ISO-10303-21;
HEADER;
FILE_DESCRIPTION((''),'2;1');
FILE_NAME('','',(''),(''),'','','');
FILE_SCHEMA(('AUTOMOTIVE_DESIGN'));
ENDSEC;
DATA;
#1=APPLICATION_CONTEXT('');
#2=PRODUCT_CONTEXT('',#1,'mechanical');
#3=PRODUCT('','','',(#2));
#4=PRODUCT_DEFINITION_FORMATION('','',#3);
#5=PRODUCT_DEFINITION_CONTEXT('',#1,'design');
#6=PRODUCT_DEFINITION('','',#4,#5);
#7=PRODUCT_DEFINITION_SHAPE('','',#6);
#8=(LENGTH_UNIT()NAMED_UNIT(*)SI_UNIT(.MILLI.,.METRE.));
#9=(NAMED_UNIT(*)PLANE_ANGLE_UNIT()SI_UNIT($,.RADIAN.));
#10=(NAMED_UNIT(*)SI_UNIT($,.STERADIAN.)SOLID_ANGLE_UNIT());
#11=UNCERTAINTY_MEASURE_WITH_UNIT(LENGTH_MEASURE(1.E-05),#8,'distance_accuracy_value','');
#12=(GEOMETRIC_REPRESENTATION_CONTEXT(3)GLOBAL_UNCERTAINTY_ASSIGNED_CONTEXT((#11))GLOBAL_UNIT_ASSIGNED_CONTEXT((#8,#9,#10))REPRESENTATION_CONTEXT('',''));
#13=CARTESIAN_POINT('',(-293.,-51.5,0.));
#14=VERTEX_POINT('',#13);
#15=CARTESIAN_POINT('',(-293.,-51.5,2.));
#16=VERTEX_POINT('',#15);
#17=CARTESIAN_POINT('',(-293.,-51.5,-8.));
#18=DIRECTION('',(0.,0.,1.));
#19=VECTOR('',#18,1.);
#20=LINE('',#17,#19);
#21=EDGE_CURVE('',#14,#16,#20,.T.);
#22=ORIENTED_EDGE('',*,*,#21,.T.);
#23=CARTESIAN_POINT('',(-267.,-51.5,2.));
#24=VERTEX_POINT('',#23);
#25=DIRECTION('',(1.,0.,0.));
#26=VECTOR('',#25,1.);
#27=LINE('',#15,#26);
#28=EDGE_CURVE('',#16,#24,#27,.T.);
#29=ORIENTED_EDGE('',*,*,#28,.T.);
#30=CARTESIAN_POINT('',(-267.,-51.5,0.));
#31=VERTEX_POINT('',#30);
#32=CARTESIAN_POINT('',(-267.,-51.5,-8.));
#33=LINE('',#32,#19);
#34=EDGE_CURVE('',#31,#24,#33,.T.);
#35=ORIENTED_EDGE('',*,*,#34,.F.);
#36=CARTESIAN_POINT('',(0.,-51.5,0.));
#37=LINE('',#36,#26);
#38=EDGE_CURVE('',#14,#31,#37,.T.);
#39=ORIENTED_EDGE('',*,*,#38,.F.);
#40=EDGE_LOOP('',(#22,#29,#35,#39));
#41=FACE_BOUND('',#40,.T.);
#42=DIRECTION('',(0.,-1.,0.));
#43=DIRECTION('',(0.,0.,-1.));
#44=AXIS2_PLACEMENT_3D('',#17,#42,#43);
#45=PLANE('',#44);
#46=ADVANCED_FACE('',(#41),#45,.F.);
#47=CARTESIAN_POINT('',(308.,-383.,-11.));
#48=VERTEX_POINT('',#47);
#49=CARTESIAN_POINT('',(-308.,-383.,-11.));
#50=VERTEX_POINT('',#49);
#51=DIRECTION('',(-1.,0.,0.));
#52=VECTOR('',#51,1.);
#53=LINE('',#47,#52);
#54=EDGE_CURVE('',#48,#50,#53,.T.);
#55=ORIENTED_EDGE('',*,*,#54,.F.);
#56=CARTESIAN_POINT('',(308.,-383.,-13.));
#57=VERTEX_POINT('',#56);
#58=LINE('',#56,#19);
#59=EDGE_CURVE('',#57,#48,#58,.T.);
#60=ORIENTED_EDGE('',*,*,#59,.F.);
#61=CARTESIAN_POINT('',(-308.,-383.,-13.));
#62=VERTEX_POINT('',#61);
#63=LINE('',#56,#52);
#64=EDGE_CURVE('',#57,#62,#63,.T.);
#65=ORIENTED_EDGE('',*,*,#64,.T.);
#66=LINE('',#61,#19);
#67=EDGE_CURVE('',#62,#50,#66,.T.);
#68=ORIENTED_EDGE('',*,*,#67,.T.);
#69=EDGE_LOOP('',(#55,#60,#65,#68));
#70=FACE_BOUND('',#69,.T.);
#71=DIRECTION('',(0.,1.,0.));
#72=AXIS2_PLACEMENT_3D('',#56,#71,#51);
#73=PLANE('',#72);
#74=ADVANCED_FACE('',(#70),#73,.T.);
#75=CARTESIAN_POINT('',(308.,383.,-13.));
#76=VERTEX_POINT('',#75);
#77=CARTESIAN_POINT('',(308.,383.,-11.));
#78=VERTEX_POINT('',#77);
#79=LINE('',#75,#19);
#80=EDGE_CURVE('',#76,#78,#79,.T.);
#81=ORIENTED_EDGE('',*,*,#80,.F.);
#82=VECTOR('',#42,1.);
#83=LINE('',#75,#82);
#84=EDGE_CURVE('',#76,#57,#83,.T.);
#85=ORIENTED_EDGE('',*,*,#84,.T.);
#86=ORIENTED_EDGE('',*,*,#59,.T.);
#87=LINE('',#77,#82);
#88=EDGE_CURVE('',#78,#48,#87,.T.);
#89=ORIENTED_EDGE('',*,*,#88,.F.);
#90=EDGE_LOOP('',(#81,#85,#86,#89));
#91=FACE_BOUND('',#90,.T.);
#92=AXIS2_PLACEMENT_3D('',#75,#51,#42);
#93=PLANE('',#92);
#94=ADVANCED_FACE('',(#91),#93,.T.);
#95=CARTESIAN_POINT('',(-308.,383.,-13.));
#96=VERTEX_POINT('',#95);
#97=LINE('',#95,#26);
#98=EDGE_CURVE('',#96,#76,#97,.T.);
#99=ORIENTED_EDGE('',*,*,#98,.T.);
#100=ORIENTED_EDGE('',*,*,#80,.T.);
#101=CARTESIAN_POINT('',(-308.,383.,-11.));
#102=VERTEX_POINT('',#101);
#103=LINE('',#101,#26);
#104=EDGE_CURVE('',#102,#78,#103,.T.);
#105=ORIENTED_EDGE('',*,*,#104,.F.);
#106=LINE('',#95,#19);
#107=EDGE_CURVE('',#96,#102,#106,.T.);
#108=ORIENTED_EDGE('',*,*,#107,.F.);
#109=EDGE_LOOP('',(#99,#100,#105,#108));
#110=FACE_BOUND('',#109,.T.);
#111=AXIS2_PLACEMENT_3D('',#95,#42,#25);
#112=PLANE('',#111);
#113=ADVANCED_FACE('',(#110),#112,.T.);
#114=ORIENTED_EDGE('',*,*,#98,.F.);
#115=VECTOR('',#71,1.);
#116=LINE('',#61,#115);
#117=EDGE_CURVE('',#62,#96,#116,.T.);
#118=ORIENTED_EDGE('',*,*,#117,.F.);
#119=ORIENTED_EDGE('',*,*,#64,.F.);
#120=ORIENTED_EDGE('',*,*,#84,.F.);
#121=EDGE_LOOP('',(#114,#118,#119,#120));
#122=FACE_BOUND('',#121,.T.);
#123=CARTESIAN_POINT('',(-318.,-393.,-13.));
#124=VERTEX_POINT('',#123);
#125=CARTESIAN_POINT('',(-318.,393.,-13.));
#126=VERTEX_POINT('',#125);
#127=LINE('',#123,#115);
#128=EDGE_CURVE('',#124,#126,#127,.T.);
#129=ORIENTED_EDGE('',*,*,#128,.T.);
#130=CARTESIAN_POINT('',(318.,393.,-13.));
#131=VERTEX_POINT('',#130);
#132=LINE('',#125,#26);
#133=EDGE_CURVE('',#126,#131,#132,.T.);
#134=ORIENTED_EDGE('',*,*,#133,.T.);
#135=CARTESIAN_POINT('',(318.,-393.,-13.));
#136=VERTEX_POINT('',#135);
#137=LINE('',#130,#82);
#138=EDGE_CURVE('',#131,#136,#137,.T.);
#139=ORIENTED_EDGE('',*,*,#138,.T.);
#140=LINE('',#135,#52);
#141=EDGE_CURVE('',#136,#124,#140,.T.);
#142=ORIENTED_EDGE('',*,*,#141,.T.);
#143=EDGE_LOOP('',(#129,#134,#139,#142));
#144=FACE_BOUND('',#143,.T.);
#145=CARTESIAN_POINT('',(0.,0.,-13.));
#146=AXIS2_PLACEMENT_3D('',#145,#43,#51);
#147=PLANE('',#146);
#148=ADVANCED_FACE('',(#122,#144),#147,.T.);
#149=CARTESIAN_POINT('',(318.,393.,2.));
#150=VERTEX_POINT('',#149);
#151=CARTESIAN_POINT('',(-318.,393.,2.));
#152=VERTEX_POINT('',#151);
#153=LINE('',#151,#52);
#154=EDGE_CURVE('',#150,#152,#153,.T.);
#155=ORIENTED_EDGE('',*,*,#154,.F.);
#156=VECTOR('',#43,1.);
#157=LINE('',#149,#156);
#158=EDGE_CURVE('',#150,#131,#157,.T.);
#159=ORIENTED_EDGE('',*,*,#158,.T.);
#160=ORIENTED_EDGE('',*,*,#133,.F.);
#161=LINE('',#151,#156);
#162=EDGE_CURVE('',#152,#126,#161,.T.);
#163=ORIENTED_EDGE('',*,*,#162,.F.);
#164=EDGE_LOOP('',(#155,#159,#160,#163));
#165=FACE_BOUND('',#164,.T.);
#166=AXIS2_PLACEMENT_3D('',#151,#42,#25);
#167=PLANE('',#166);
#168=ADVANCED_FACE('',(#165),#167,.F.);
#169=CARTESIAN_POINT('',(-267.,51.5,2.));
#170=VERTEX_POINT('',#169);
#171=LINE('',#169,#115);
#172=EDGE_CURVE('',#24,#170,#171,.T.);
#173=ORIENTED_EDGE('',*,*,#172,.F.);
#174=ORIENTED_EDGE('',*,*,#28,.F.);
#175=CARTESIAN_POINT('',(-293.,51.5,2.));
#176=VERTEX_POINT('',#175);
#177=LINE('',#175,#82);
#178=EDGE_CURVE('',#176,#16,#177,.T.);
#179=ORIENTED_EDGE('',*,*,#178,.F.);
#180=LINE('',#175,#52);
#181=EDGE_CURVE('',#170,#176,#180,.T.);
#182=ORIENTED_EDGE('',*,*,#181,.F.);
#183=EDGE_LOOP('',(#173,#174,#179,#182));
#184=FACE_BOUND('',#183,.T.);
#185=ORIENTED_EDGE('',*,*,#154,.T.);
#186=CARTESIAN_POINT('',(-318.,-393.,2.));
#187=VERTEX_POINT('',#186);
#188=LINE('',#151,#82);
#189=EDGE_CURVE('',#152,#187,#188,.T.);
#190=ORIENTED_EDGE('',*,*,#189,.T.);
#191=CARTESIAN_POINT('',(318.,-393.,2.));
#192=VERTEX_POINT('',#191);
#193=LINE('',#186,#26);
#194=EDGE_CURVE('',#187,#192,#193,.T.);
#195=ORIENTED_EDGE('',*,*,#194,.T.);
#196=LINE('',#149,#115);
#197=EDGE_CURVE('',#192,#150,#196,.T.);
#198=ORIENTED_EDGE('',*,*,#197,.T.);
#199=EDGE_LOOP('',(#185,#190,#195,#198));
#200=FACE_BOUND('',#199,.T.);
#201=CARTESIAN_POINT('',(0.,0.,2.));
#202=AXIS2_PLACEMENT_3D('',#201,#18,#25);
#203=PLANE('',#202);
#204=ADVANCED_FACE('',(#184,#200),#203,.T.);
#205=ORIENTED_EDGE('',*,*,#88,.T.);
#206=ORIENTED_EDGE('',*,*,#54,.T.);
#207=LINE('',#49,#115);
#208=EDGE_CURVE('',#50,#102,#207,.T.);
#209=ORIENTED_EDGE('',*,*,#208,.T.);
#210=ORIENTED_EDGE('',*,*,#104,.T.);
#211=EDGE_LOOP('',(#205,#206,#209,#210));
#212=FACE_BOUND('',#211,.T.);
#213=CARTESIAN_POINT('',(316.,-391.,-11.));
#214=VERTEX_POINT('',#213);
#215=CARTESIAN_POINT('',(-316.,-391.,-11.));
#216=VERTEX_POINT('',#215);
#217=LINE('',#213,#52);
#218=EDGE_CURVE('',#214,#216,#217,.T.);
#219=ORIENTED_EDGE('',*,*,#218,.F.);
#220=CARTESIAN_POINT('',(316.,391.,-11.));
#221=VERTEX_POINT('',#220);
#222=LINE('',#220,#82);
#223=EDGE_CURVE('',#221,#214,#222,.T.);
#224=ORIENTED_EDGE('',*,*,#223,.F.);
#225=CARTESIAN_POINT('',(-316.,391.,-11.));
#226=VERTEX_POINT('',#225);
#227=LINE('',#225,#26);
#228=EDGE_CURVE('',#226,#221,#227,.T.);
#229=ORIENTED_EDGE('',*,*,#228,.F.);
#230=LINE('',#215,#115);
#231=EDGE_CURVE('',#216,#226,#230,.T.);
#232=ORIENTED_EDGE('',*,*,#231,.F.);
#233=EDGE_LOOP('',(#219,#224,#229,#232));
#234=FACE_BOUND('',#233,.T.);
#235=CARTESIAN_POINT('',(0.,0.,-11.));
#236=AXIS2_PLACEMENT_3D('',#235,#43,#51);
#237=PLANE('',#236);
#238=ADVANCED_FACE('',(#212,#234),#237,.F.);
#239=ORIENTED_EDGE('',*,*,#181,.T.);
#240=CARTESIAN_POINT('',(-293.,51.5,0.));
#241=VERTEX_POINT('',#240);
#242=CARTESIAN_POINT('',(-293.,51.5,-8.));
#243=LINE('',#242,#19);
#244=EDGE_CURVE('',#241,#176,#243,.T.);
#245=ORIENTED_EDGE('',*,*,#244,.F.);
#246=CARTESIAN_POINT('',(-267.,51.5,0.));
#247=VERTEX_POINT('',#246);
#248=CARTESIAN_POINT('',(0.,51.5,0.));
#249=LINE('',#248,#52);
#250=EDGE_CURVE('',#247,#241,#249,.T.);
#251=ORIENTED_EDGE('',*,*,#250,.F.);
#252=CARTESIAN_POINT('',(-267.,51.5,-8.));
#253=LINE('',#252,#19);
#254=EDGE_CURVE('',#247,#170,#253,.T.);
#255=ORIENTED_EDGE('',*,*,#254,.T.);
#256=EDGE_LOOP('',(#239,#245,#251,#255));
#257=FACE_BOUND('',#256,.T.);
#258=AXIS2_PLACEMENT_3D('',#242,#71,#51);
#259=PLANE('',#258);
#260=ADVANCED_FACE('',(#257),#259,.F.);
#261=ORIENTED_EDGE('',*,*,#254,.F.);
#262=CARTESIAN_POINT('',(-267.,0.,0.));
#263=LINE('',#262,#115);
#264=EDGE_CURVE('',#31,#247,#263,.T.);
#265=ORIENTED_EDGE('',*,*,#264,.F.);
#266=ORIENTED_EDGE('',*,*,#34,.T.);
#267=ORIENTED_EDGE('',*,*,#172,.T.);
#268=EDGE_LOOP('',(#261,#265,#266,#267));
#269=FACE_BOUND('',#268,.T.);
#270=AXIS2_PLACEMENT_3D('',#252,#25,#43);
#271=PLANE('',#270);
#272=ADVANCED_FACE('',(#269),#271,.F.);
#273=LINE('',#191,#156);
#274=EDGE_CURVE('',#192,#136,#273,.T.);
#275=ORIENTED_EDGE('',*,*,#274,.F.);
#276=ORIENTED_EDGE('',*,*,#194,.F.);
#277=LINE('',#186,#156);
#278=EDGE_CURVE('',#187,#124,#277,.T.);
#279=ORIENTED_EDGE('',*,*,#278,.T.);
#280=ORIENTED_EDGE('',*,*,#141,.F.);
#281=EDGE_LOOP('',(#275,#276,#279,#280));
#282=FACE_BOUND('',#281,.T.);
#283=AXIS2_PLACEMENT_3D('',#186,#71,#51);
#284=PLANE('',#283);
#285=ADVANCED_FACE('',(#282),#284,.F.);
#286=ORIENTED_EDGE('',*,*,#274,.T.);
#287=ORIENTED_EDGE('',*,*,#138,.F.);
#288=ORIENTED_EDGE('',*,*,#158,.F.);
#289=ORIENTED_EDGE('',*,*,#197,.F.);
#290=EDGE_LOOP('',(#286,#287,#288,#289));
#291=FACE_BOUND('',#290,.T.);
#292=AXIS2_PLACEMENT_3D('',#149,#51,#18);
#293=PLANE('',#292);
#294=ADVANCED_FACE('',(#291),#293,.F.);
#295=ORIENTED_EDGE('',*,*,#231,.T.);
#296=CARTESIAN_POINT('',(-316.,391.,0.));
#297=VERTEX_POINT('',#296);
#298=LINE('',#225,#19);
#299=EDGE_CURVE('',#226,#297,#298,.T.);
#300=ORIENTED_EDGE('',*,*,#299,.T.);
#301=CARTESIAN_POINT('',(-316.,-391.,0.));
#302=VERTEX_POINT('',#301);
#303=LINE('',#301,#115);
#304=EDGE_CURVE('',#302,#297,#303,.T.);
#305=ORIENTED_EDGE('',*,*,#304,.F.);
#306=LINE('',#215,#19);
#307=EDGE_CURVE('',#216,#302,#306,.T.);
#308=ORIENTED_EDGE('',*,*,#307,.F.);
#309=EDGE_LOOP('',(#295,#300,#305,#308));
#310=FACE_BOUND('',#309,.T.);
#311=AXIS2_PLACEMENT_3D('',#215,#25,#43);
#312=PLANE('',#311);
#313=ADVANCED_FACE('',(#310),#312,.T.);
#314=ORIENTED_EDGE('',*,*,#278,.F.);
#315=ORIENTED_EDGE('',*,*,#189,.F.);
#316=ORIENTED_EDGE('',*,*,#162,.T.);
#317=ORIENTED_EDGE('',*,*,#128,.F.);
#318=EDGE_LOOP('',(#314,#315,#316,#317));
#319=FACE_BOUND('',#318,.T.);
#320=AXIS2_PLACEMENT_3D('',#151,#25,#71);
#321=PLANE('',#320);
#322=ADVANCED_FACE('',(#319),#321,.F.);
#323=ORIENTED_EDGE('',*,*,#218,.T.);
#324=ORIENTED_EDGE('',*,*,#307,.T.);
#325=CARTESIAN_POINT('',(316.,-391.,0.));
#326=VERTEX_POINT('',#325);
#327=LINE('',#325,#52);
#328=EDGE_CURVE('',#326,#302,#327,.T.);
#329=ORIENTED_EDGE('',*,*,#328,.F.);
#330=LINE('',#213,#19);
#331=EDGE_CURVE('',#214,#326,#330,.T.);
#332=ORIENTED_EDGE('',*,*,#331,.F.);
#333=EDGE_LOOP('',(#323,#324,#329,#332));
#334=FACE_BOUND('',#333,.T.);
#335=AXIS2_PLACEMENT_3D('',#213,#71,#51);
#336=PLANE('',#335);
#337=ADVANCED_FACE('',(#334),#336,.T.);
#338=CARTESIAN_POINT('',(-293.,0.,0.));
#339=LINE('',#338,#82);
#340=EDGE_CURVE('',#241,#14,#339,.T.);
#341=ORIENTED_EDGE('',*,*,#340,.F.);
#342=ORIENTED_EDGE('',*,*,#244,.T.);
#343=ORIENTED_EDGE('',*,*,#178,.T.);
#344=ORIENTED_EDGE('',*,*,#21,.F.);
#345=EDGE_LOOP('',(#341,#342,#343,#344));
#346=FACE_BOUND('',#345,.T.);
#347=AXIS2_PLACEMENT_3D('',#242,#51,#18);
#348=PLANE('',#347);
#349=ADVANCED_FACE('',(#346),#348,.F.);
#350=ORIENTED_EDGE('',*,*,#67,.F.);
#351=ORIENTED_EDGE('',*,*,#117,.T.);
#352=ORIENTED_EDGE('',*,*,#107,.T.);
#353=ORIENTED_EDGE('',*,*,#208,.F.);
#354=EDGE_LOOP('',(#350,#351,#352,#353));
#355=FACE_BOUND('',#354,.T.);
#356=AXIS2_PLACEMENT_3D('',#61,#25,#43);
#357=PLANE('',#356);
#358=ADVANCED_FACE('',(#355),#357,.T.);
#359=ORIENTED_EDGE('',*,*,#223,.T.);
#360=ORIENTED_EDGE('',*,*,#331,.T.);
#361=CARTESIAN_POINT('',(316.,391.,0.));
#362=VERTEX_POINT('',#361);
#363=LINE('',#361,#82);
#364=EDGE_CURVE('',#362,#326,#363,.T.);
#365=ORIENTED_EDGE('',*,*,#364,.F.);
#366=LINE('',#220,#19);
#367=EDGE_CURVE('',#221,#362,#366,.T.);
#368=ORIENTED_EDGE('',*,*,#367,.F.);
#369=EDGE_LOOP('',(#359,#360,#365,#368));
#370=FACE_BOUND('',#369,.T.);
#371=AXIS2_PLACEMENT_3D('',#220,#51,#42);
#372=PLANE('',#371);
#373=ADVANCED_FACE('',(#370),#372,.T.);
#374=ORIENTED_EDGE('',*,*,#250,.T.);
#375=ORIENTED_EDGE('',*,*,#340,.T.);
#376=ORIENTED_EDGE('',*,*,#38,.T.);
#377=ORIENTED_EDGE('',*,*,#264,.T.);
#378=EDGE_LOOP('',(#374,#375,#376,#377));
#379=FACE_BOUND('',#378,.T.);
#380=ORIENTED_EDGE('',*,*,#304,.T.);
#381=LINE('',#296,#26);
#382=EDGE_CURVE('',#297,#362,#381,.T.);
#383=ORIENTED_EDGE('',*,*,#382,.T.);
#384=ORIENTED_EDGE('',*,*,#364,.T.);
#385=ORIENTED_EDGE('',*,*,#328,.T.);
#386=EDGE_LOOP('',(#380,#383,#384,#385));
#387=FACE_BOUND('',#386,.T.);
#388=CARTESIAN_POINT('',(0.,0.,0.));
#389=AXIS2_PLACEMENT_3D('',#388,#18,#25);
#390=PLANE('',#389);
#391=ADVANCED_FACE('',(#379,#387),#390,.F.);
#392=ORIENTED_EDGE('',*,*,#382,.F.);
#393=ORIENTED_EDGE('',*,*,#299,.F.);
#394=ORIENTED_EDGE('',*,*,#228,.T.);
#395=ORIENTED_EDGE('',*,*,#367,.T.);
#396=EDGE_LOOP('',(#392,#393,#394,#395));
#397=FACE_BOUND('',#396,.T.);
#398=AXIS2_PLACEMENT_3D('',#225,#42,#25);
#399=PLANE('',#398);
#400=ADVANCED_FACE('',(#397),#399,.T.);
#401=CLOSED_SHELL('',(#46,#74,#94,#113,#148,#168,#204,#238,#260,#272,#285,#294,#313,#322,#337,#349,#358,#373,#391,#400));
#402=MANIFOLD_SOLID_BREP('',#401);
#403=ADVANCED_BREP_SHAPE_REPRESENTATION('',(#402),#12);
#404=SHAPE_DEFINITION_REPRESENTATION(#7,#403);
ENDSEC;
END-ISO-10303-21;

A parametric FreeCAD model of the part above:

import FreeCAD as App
import Part
import Sketcher
from FreeCAD import Vector
Q = App.Units.Quantity

doc = App.newDocument("Part")
body = doc.addObject("PartDesign::Body", "Body")

# Sketch on XY plane
sketch1 = body.newObject("Sketcher::SketchObject", "Sketch")
sketch1.AttachmentSupport = (doc.getObject("XY_Plane"), [""])
sketch1.MapMode = "FlatFace"
sketch1.addGeometry(Part.LineSegment(Vector(-318, 393, 0), Vector(-318, -393, 0)), False)
sketch1.addGeometry(Part.LineSegment(Vector(-318, -393, 0), Vector(318, -393, 0)), False)
sketch1.addGeometry(Part.LineSegment(Vector(318, -393, 0), Vector(318, 393, 0)), False)
sketch1.addGeometry(Part.LineSegment(Vector(318, 393, 0), Vector(-318, 393, 0)), False)
sketch1.addConstraint(Sketcher.Constraint("Coincident", 0, 2, 1, 1))
sketch1.addConstraint(Sketcher.Constraint("Coincident", 1, 2, 2, 1))
sketch1.addConstraint(Sketcher.Constraint("Coincident", 2, 2, 3, 1))
sketch1.addConstraint(Sketcher.Constraint("Coincident", 3, 2, 0, 1))
sketch1.addConstraint(Sketcher.Constraint("Vertical", 0))
sketch1.addConstraint(Sketcher.Constraint("Horizontal", 1))
sketch1.addConstraint(Sketcher.Constraint("Vertical", 2))
sketch1.addConstraint(Sketcher.Constraint("Horizontal", 3))
sketch1.addConstraint(Sketcher.Constraint("Symmetric", 0, 2, 2, 2, -1, 1))
sketch1.addConstraint(Sketcher.Constraint("DistanceX", 1, 1, 1, 2, Q("636 mm")))
sketch1.addConstraint(Sketcher.Constraint("DistanceY", 0, 2, 0, 1, Q("786 mm")))
pad1 = body.newObject("PartDesign::Pad", "Pad")
pad1.Profile = sketch1
pad1.Length = 2

# Sketch on XY plane
sketch2 = body.newObject("Sketcher::SketchObject", "Sketch001")
sketch2.AttachmentSupport = (doc.getObject("XY_Plane"), [""])
sketch2.MapMode = "FlatFace"
sketch2.addGeometry(Part.LineSegment(Vector(318, 393, 0), Vector(318, -393, 0)), False)
sketch2.addGeometry(Part.LineSegment(Vector(318, -393, 0), Vector(-318, -393, 0)), False)
sketch2.addGeometry(Part.LineSegment(Vector(-318, -393, 0), Vector(-318, 393, 0)), False)
sketch2.addGeometry(Part.LineSegment(Vector(-318, 393, 0), Vector(318, 393, 0)), False)
sketch2.addGeometry(Part.LineSegment(Vector(-316, -391, 0), Vector(316, -391, 0)), False)
sketch2.addGeometry(Part.LineSegment(Vector(316, -391, 0), Vector(316, 391, 0)), False)
sketch2.addGeometry(Part.LineSegment(Vector(316, 391, 0), Vector(-316, 391, 0)), False)
sketch2.addGeometry(Part.LineSegment(Vector(-316, 391, 0), Vector(-316, -391, 0)), False)
sketch2.addConstraint(Sketcher.Constraint("Coincident", 0, 2, 1, 1))
sketch2.addConstraint(Sketcher.Constraint("Coincident", 1, 2, 2, 1))
sketch2.addConstraint(Sketcher.Constraint("Coincident", 2, 2, 3, 1))
sketch2.addConstraint(Sketcher.Constraint("Coincident", 3, 2, 0, 1))
sketch2.addConstraint(Sketcher.Constraint("Coincident", 4, 2, 5, 1))
sketch2.addConstraint(Sketcher.Constraint("Coincident", 5, 2, 6, 1))
sketch2.addConstraint(Sketcher.Constraint("Coincident", 6, 2, 7, 1))
sketch2.addConstraint(Sketcher.Constraint("Coincident", 7, 2, 4, 1))
sketch2.addConstraint(Sketcher.Constraint("Vertical", 0))
sketch2.addConstraint(Sketcher.Constraint("Horizontal", 1))
sketch2.addConstraint(Sketcher.Constraint("Vertical", 2))
sketch2.addConstraint(Sketcher.Constraint("Horizontal", 3))
sketch2.addConstraint(Sketcher.Constraint("Horizontal", 4))
sketch2.addConstraint(Sketcher.Constraint("Vertical", 5))
sketch2.addConstraint(Sketcher.Constraint("Horizontal", 6))
sketch2.addConstraint(Sketcher.Constraint("Vertical", 7))
sketch2.addConstraint(Sketcher.Constraint("Symmetric", 0, 2, 2, 2, -1, 1))
sketch2.addConstraint(Sketcher.Constraint("Symmetric", 4, 2, 6, 2, -1, 1))
sketch2.addConstraint(Sketcher.Constraint("DistanceX", 1, 2, 1, 1, Q("636 mm")))
sketch2.addConstraint(Sketcher.Constraint("DistanceX", 4, 1, 4, 2, Q("632 mm")))
sketch2.addConstraint(Sketcher.Constraint("DistanceY", 0, 2, 0, 1, Q("786 mm")))
sketch2.addConstraint(Sketcher.Constraint("DistanceY", 5, 1, 5, 2, Q("782 mm")))
pad2 = body.newObject("PartDesign::Pad", "Pad001")
pad2.Profile = sketch2
pad2.Length = 11
pad2.Reversed = True

# Sketch on XY plane
sketch3 = body.newObject("Sketcher::SketchObject", "Sketch002")
sketch3.AttachmentSupport = (doc.getObject("XY_Plane"), [""])
sketch3.MapMode = "FlatFace"
sketch3.AttachmentOffset = App.Placement(Vector(0, 0, -11), App.Rotation())
sketch3.addGeometry(Part.LineSegment(Vector(318, 393, 0), Vector(318, -393, 0)), False)
sketch3.addGeometry(Part.LineSegment(Vector(318, -393, 0), Vector(-318, -393, 0)), False)
sketch3.addGeometry(Part.LineSegment(Vector(-318, -393, 0), Vector(-318, 393, 0)), False)
sketch3.addGeometry(Part.LineSegment(Vector(-318, 393, 0), Vector(318, 393, 0)), False)
sketch3.addGeometry(Part.LineSegment(Vector(-308, -383, 0), Vector(308, -383, 0)), False)
sketch3.addGeometry(Part.LineSegment(Vector(308, -383, 0), Vector(308, 383, 0)), False)
sketch3.addGeometry(Part.LineSegment(Vector(308, 383, 0), Vector(-308, 383, 0)), False)
sketch3.addGeometry(Part.LineSegment(Vector(-308, 383, 0), Vector(-308, -383, 0)), False)
sketch3.addConstraint(Sketcher.Constraint("Coincident", 0, 2, 1, 1))
sketch3.addConstraint(Sketcher.Constraint("Coincident", 1, 2, 2, 1))
sketch3.addConstraint(Sketcher.Constraint("Coincident", 2, 2, 3, 1))
sketch3.addConstraint(Sketcher.Constraint("Coincident", 3, 2, 0, 1))
sketch3.addConstraint(Sketcher.Constraint("Coincident", 4, 2, 5, 1))
sketch3.addConstraint(Sketcher.Constraint("Coincident", 5, 2, 6, 1))
sketch3.addConstraint(Sketcher.Constraint("Coincident", 6, 2, 7, 1))
sketch3.addConstraint(Sketcher.Constraint("Coincident", 7, 2, 4, 1))
sketch3.addConstraint(Sketcher.Constraint("Vertical", 0))
sketch3.addConstraint(Sketcher.Constraint("Horizontal", 1))
sketch3.addConstraint(Sketcher.Constraint("Vertical", 2))
sketch3.addConstraint(Sketcher.Constraint("Horizontal", 3))
sketch3.addConstraint(Sketcher.Constraint("Horizontal", 4))
sketch3.addConstraint(Sketcher.Constraint("Vertical", 5))
sketch3.addConstraint(Sketcher.Constraint("Horizontal", 6))
sketch3.addConstraint(Sketcher.Constraint("Vertical", 7))
sketch3.addConstraint(Sketcher.Constraint("Symmetric", 0, 2, 2, 2, -1, 1))
sketch3.addConstraint(Sketcher.Constraint("Symmetric", 4, 2, 6, 2, -1, 1))
sketch3.addConstraint(Sketcher.Constraint("DistanceX", 1, 2, 1, 1, Q("636 mm")))
sketch3.addConstraint(Sketcher.Constraint("DistanceX", 4, 1, 4, 2, Q("616 mm")))
sketch3.addConstraint(Sketcher.Constraint("DistanceY", 0, 2, 0, 1, Q("786 mm")))
sketch3.addConstraint(Sketcher.Constraint("DistanceY", 5, 1, 5, 2, Q("766 mm")))
pad3 = body.newObject("PartDesign::Pad", "Pad002")
pad3.Profile = sketch3
pad3.Length = 2
pad3.Reversed = True

# Sketch on XY plane
sketch4 = body.newObject("Sketcher::SketchObject", "Sketch003")
sketch4.AttachmentSupport = (doc.getObject("XY_Plane"), [""])
sketch4.MapMode = "FlatFace"
sketch4.AttachmentOffset = App.Placement(Vector(0, 0, 2), App.Rotation())
sketch4.addGeometry(Part.LineSegment(Vector(-293, 51.5, 0), Vector(-293, -51.5, 0)), False)
sketch4.addGeometry(Part.LineSegment(Vector(-293, -51.5, 0), Vector(-267, -51.5, 0)), False)
sketch4.addGeometry(Part.LineSegment(Vector(-267, -51.5, 0), Vector(-267, 51.5, 0)), False)
sketch4.addGeometry(Part.LineSegment(Vector(-267, 51.5, 0), Vector(-293, 51.5, 0)), False)
sketch4.addConstraint(Sketcher.Constraint("Coincident", 0, 2, 1, 1))
sketch4.addConstraint(Sketcher.Constraint("Coincident", 1, 2, 2, 1))
sketch4.addConstraint(Sketcher.Constraint("Coincident", 2, 2, 3, 1))
sketch4.addConstraint(Sketcher.Constraint("Coincident", 3, 2, 0, 1))
sketch4.addConstraint(Sketcher.Constraint("Vertical", 0))
sketch4.addConstraint(Sketcher.Constraint("Horizontal", 1))
sketch4.addConstraint(Sketcher.Constraint("Vertical", 2))
sketch4.addConstraint(Sketcher.Constraint("Horizontal", 3))
sketch4.addConstraint(Sketcher.Constraint("DistanceX", 1, 1, 1, 2, Q("26 mm")))
sketch4.addConstraint(Sketcher.Constraint("DistanceY", 0, 2, 0, 1, Q("103 mm")))
sketch4.addConstraint(Sketcher.Constraint("DistanceX", 0, 2, -1, 1, Q("293 mm")))
sketch4.addConstraint(Sketcher.Constraint("DistanceY", 0, 2, -1, 1, Q("51.5 mm")))
pocket1 = body.newObject("PartDesign::Pocket", "Pocket")
pocket1.Profile = sketch4
pocket1.Length = 10

doc.recompute()
